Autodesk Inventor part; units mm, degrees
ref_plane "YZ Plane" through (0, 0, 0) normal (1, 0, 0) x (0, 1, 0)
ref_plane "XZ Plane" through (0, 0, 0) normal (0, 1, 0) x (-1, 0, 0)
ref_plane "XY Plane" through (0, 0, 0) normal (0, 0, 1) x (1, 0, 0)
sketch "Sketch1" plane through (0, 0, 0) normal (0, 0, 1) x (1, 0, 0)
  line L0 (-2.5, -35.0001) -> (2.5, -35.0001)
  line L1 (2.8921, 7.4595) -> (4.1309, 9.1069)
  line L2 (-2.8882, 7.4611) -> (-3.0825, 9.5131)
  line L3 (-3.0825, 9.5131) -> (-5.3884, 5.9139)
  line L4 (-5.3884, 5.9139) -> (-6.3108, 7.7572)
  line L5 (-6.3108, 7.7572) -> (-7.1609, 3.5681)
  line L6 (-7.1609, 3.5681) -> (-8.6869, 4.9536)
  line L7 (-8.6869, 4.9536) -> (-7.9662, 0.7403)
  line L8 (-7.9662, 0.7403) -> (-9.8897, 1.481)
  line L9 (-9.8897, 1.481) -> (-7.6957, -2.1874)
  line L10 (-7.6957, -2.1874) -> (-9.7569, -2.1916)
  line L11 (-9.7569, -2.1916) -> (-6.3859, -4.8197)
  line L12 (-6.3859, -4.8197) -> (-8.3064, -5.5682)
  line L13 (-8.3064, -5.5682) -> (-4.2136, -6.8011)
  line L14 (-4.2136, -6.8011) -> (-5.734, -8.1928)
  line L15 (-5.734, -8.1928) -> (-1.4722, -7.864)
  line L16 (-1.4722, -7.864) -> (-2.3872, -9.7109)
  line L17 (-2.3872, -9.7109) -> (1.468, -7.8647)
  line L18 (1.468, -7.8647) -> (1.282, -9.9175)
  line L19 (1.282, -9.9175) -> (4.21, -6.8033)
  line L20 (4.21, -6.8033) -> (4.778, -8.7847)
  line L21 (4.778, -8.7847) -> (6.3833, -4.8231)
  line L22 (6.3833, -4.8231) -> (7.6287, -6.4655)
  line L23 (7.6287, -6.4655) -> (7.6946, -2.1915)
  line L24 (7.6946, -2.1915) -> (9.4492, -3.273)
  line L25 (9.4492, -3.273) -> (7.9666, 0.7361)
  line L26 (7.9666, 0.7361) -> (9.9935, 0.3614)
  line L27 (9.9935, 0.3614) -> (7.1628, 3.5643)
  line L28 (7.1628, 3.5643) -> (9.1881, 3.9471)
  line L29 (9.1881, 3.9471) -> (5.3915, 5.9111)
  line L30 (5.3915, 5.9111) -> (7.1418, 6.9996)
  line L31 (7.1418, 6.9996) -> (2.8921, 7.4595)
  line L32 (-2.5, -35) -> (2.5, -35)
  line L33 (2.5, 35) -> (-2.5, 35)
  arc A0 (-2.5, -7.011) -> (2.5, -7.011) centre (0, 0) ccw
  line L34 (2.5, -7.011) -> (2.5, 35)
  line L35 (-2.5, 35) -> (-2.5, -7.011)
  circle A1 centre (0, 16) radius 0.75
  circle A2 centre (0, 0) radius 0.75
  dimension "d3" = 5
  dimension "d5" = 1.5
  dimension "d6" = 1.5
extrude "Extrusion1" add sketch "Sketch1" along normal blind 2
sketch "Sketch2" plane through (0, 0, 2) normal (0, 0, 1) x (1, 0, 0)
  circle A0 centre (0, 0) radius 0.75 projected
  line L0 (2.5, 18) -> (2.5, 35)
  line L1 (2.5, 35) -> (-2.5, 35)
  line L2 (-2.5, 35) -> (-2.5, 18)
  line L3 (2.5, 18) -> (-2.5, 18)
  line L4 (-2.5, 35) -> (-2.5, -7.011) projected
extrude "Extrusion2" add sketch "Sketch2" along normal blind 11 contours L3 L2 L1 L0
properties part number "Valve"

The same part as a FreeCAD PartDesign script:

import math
import FreeCAD as App
import Part
import Sketcher


def add_polygon(sketch, points):
    """Adds a closed chain of lines whose ends are joined by coincident constraints."""
    first, n = sketch.GeometryCount, len(points)
    for a, b in zip(points, points[1:] + points[:1]):
        sketch.addGeometry(Part.LineSegment(App.Vector(*a, 0), App.Vector(*b, 0)), False)
    for i in range(n):
        sketch.addConstraint(Sketcher.Constraint("Coincident", first + i, 2, first + (i + 1) % n, 1))

doc = App.newDocument("Part")
body = doc.addObject("PartDesign::Body", "Body")

# Sketch on XY plane
sketch1 = body.newObject("Sketcher::SketchObject", "Sketch")
sketch1.AttachmentSupport = (doc.getObject("XY_Plane"), [""])
sketch1.MapMode = "FlatFace"
sketch1.addGeometry([
    Part.LineSegment(App.Vector(2.5, -7, 0), App.Vector(2.5, 35, 0)),  # 0
    Part.LineSegment(App.Vector(2.5, 35, 0), App.Vector(-2.5, 35, 0)),  # 1
    Part.LineSegment(App.Vector(-2.5, 35, 0), App.Vector(-2.5, -7, 0)),  # 2
    Part.ArcOfCircle(Part.Circle(App.Vector(0, 0, 0), App.Vector(0, 0, 1), 7.4), math.radians(-110), math.radians(-70)),  # 3
    Part.Circle(App.Vector(0, 0, 0), App.Vector(0, 0, 1), 0.8),  # 4
    Part.Circle(App.Vector(0, 16, 0), App.Vector(0, 0, 1), 0.8),  # 5
], False)
sketch1.addConstraint([
    Sketcher.Constraint("Coincident", 0, 2, 1, 1),
    Sketcher.Constraint("Coincident", 1, 2, 2, 1),
    Sketcher.Constraint("Coincident", 2, 2, 3, 1),
    Sketcher.Constraint("Coincident", 3, 2, 0, 1),
    Sketcher.Constraint("Vertical", 0),
    Sketcher.Constraint("Horizontal", 1),
    Sketcher.Constraint("Vertical", 2),
    Sketcher.Constraint("Coincident", 3, 3, -1, 1),
    Sketcher.Constraint("Coincident", 4, 3, -1, 1),
    Sketcher.Constraint("Equal", 4, 5),
    Sketcher.Constraint("PointOnObject", 5, 3, -2),
    Sketcher.Constraint("Horizontal", 2, 2, 3, 2),
    Sketcher.Constraint("Diameter", 4, 1.5),
    Sketcher.Constraint("DistanceX", 1, 2, 1, 1, 5.0),
    Sketcher.Constraint("DistanceY", -1, 1, 5, 3, 16.0),
    Sketcher.Constraint("DistanceY", -1, 1, 0, 2, 35.0),
    Sketcher.Constraint("Radius", 3, 7.4434),
])
pad1 = body.newObject("PartDesign::Pad", "Pad")
pad1.Profile = sketch1
pad1.Length = 2

# Sketch on XY plane
sketch2 = body.newObject("Sketcher::SketchObject", "Sketch001")
sketch2.AttachmentSupport = (doc.getObject("XY_Plane"), [""])
sketch2.MapMode = "FlatFace"
sketch2.AttachmentOffset = App.Placement(App.Vector(0, 0, 2), App.Rotation())
add_polygon(sketch2, [(-2, 18), (2, 18), (2, 35), (-2, 35)])  # lines 0-3
sketch2.addConstraint([
    Sketcher.Constraint("Horizontal", 0),
    Sketcher.Constraint("Vertical", 1),
    Sketcher.Constraint("Horizontal", 2),
    Sketcher.Constraint("Vertical", 3),
    Sketcher.Constraint("DistanceX", 0, 1, 0, 2, 5.0),
    Sketcher.Constraint("DistanceY", 1, 1, 1, 2, 17.0),
    Sketcher.Constraint("DistanceY", -1, 1, 0, 2, 18.0),
    Sketcher.Constraint("DistanceX", -1, 1, 0, 2, 2.5),
])
pad2 = body.newObject("PartDesign::Pad", "Pad001")
pad2.Profile = sketch2
pad2.Length = 11

doc.recompute()
